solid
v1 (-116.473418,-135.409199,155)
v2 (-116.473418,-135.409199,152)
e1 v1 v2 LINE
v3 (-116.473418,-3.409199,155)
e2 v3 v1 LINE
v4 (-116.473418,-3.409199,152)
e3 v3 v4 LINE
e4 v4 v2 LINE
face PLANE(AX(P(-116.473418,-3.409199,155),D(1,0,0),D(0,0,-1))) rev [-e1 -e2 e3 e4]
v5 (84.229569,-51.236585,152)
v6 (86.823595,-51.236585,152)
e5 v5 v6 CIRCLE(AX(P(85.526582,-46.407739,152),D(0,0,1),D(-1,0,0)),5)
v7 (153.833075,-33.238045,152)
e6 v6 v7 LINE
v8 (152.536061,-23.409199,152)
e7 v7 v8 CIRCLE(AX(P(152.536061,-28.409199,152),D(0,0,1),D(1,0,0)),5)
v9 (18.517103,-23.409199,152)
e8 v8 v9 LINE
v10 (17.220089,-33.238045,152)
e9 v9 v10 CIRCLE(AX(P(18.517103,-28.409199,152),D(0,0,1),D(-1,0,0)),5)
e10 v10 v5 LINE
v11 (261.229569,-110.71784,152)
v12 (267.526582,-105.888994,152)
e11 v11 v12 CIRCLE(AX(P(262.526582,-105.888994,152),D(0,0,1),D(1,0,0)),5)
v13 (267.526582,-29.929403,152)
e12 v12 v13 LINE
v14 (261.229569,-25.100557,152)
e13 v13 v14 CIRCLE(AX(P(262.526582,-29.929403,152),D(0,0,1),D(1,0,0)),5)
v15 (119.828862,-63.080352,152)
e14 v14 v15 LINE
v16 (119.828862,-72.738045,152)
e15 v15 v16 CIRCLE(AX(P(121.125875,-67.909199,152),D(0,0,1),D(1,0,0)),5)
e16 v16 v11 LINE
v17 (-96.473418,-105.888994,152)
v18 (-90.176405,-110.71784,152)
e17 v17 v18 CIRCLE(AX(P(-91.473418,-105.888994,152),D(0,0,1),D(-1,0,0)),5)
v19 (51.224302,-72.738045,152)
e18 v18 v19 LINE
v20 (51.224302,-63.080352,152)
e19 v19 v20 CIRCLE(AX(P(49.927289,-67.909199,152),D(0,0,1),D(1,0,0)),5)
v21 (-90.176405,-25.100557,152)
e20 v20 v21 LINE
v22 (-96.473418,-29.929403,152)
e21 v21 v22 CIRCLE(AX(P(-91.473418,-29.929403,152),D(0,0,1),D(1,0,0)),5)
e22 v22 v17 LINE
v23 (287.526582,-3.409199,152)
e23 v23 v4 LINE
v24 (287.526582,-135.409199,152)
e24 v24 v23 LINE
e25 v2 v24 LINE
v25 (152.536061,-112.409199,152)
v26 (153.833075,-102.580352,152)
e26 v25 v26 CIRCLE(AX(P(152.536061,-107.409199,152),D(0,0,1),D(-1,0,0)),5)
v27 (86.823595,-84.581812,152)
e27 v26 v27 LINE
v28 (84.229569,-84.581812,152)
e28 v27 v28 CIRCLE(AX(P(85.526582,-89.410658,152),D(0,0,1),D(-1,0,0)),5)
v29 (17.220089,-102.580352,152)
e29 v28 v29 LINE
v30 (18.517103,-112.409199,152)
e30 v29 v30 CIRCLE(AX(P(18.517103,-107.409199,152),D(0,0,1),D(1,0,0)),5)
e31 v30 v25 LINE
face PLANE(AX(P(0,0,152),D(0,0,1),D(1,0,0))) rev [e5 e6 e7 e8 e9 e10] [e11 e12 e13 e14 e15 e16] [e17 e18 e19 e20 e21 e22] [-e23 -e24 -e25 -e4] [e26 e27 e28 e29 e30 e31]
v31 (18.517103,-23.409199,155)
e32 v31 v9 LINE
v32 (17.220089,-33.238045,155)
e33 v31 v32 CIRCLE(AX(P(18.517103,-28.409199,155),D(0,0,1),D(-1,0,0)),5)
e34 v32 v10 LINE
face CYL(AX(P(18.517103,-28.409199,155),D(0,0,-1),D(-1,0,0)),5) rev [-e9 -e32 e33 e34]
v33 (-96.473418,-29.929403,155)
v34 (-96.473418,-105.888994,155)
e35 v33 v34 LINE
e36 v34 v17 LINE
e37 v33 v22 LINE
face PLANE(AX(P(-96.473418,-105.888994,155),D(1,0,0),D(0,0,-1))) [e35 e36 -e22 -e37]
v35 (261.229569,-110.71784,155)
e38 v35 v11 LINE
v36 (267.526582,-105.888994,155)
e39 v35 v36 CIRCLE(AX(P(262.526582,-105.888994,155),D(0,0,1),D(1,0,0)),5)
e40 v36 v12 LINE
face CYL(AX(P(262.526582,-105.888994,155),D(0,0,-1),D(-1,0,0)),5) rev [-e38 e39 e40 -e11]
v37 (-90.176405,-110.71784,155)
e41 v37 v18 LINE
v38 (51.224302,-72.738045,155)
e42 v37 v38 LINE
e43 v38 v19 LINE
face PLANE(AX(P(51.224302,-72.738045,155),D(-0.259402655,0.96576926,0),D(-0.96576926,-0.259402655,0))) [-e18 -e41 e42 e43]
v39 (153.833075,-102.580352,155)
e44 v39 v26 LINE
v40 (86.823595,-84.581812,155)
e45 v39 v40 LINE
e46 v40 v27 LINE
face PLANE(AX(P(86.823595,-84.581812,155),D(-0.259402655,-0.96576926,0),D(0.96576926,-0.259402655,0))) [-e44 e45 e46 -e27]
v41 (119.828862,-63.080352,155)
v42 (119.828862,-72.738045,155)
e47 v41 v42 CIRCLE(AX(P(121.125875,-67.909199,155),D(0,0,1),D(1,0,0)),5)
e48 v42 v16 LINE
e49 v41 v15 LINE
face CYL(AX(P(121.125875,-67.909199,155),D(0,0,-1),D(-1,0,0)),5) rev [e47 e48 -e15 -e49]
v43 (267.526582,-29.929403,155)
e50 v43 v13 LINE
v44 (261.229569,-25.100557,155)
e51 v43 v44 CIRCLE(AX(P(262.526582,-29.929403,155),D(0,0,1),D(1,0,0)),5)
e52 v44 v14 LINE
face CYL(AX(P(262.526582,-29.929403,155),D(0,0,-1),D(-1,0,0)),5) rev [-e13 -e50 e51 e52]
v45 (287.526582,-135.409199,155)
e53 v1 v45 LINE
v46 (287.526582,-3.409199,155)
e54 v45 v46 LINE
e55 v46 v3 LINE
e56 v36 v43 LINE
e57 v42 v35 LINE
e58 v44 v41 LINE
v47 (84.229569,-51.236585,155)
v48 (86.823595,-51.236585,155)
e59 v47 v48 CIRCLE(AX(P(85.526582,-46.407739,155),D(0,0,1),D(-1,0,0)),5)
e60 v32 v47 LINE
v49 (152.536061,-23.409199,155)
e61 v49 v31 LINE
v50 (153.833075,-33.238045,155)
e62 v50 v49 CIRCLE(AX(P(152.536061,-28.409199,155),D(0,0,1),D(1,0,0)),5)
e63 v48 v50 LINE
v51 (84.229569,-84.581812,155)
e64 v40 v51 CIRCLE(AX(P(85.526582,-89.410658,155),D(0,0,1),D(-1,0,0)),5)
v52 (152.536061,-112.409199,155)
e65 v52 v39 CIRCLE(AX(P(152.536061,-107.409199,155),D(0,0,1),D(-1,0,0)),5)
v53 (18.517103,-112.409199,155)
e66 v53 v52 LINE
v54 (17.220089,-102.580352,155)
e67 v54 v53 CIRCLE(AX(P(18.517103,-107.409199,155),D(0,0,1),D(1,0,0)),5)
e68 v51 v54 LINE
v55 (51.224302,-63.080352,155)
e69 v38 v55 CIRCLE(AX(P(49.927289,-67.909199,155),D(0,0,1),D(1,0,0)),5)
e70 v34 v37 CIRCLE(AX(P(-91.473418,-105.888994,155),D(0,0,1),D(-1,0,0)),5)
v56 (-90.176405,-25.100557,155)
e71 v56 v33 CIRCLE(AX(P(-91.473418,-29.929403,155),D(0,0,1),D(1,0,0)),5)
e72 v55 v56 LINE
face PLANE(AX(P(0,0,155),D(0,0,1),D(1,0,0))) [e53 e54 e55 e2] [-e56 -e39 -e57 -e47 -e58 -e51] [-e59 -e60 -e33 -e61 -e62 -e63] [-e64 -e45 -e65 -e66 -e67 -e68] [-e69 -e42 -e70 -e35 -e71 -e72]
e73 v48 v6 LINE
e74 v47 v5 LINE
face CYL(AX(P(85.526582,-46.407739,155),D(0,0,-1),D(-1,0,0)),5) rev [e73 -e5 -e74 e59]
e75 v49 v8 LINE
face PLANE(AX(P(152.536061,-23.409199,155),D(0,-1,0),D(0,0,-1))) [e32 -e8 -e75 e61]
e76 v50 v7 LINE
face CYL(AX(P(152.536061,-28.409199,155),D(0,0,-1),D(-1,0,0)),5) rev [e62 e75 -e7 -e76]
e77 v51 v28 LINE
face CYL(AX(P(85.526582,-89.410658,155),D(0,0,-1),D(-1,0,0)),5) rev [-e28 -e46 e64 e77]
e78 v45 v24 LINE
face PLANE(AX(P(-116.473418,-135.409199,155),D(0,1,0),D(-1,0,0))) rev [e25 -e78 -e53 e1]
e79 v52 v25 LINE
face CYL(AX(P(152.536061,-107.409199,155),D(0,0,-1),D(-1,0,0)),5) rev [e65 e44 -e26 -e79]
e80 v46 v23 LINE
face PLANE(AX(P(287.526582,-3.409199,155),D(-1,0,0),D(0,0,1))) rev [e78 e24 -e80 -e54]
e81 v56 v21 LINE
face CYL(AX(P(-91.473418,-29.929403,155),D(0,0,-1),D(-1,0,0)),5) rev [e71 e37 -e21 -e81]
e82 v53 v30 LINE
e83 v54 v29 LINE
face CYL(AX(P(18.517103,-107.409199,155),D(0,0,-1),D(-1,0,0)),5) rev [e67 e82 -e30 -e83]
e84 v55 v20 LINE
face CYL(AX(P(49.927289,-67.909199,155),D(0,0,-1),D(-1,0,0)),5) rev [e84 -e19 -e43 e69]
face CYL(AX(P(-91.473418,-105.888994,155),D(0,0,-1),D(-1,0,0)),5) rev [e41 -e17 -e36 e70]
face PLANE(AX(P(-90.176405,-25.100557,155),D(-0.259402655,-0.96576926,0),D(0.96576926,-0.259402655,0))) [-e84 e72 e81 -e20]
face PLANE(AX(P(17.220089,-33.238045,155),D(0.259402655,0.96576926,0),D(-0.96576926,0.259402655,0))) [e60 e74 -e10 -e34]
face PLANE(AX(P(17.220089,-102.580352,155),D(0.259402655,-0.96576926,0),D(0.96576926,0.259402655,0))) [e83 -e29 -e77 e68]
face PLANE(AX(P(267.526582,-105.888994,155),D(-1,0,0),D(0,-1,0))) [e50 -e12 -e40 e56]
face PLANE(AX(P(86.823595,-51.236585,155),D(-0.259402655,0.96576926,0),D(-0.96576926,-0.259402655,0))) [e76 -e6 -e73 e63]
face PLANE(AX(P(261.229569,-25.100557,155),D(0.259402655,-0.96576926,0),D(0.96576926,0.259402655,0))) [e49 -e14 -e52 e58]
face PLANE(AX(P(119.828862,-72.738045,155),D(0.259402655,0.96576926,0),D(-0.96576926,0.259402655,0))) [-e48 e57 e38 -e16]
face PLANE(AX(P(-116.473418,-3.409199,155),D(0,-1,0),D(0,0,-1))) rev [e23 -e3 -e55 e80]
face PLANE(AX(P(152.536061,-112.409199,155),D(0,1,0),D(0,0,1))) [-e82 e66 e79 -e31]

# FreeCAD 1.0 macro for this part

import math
import FreeCAD as App
import Part
import Sketcher

V = App.Vector

doc = App.newDocument("Part")
body = doc.addObject("PartDesign::Body", "Body")

# Sketch on XY plane
sketch1 = doc.addObject("Sketcher::SketchObject", "Sketch")
body.addObject(sketch1)
sketch1.AttachmentSupport = (doc.XY_Plane, [""])
sketch1.MapMode = "FlatFace"
sketch1.AttachmentOffset = App.Placement(V(0, 0, 152), App.Rotation())
sketch1.addGeometry([
    Part.LineSegment(V(-116.5, -3.4, 0), V(-116.5, -135.4, 0)),  # 0
    Part.LineSegment(V(-116.5, -135.4, 0), V(287.5, -135.4, 0)),  # 1
    Part.LineSegment(V(287.5, -135.4, 0), V(287.5, -3.4, 0)),  # 2
    Part.LineSegment(V(287.5, -3.4, 0), V(-116.5, -3.4, 0)),  # 3
    Part.ArcOfCircle(Part.Circle(V(18.5, -107.4, 0), V(0, 0, 1), 5), math.radians(105), math.radians(270)),  # 4
    Part.LineSegment(V(17.2, -102.6, 0), V(84.2, -84.6, 0)),  # 5
    Part.ArcOfCircle(Part.Circle(V(85.5, -89.4, 0), V(0, 0, 1), 5), math.radians(75), math.radians(105)),  # 6
    Part.LineSegment(V(86.8, -84.6, 0), V(153.8, -102.6, 0)),  # 7
    Part.ArcOfCircle(Part.Circle(V(152.5, -107.4, 0), V(0, 0, 1), 5), math.radians(-90), math.radians(75)),  # 8
    Part.LineSegment(V(152.5, -112.4, 0), V(18.5, -112.4, 0)),  # 9
    Part.ArcOfCircle(Part.Circle(V(-91.5, -105.9, 0), V(0, 0, 1), 5), math.radians(180), math.radians(285)),  # 10
    Part.LineSegment(V(-96.5, -105.9, 0), V(-96.5, -29.9, 0)),  # 11
    Part.ArcOfCircle(Part.Circle(V(-91.5, -29.9, 0), V(0, 0, 1), 5), math.radians(75), math.radians(180)),  # 12
    Part.LineSegment(V(-90.2, -25.1, 0), V(51.2, -63.1, 0)),  # 13
    Part.ArcOfCircle(Part.Circle(V(49.9, -67.9, 0), V(0, 0, 1), 5), math.radians(-75), math.radians(75)),  # 14
    Part.LineSegment(V(51.2, -72.7, 0), V(-90.2, -110.7, 0)),  # 15
    Part.LineSegment(V(18.5, -23.4, 0), V(152.5, -23.4, 0)),  # 16
    Part.ArcOfCircle(Part.Circle(V(152.5, -28.4, 0), V(0, 0, 1), 5), math.radians(-75), math.radians(90)),  # 17
    Part.LineSegment(V(153.8, -33.2, 0), V(86.8, -51.2, 0)),  # 18
    Part.ArcOfCircle(Part.Circle(V(85.5, -46.4, 0), V(0, 0, 1), 5), math.radians(-105), math.radians(-75)),  # 19
    Part.LineSegment(V(84.2, -51.2, 0), V(17.2, -33.2, 0)),  # 20
    Part.ArcOfCircle(Part.Circle(V(18.5, -28.4, 0), V(0, 0, 1), 5), math.radians(90), math.radians(255)),  # 21
    Part.LineSegment(V(119.8, -63.1, 0), V(261.2, -25.1, 0)),  # 22
    Part.ArcOfCircle(Part.Circle(V(262.5, -29.9, 0), V(0, 0, 1), 5), math.radians(0), math.radians(105)),  # 23
    Part.LineSegment(V(267.5, -29.9, 0), V(267.5, -105.9, 0)),  # 24
    Part.ArcOfCircle(Part.Circle(V(262.5, -105.9, 0), V(0, 0, 1), 5), math.radians(-105), math.radians(0)),  # 25
    Part.LineSegment(V(261.2, -110.7, 0), V(119.8, -72.7, 0)),  # 26
    Part.ArcOfCircle(Part.Circle(V(121.1, -67.9, 0), V(0, 0, 1), 5), math.radians(105), math.radians(255)),  # 27
], False)
sketch1.addConstraint([
    Sketcher.Constraint("Coincident", 0, 2, 1, 1),
    Sketcher.Constraint("Coincident", 1, 2, 2, 1),
    Sketcher.Constraint("Coincident", 2, 2, 3, 1),
    Sketcher.Constraint("Coincident", 3, 2, 0, 1),
    Sketcher.Constraint("Tangent", 4, 1, 5, 1),
    Sketcher.Constraint("Tangent", 5, 2, 6, 2),
    Sketcher.Constraint("Tangent", 6, 1, 7, 1),
    Sketcher.Constraint("Tangent", 7, 2, 8, 2),
    Sketcher.Constraint("Tangent", 8, 1, 9, 1),
    Sketcher.Constraint("Tangent", 9, 2, 4, 2),
    Sketcher.Constraint("Tangent", 10, 1, 11, 1),
    Sketcher.Constraint("Tangent", 11, 2, 12, 2),
    Sketcher.Constraint("Tangent", 12, 1, 13, 1),
    Sketcher.Constraint("Tangent", 13, 2, 14, 2),
    Sketcher.Constraint("Tangent", 14, 1, 15, 1),
    Sketcher.Constraint("Tangent", 15, 2, 10, 2),
    Sketcher.Constraint("Tangent", 16, 2, 17, 2),
    Sketcher.Constraint("Tangent", 17, 1, 18, 1),
    Sketcher.Constraint("Tangent", 18, 2, 19, 2),
    Sketcher.Constraint("Tangent", 19, 1, 20, 1),
    Sketcher.Constraint("Tangent", 20, 2, 21, 2),
    Sketcher.Constraint("Tangent", 21, 1, 16, 1),
    Sketcher.Constraint("Tangent", 22, 2, 23, 2),
    Sketcher.Constraint("Tangent", 23, 1, 24, 1),
    Sketcher.Constraint("Tangent", 24, 2, 25, 2),
    Sketcher.Constraint("Tangent", 25, 1, 26, 1),
    Sketcher.Constraint("Tangent", 26, 2, 27, 2),
    Sketcher.Constraint("Tangent", 27, 1, 22, 1),
    Sketcher.Constraint("Vertical", 0),
    Sketcher.Constraint("Horizontal", 1),
    Sketcher.Constraint("Vertical", 2),
    Sketcher.Constraint("Horizontal", 3),
    Sketcher.Constraint("Horizontal", 9),
    Sketcher.Constraint("Vertical", 11),
    Sketcher.Constraint("Horizontal", 16),
    Sketcher.Constraint("Vertical", 24),
    Sketcher.Constraint("Equal", 4, 6),
    Sketcher.Constraint("Equal", 6, 8),
    Sketcher.Constraint("Equal", 8, 10),
    Sketcher.Constraint("Equal", 10, 12),
    Sketcher.Constraint("Equal", 12, 14),
    Sketcher.Constraint("Equal", 14, 17),
    Sketcher.Constraint("Equal", 17, 19),
    Sketcher.Constraint("Equal", 19, 21),
    Sketcher.Constraint("Equal", 21, 23),
    Sketcher.Constraint("Equal", 23, 25),
    Sketcher.Constraint("Equal", 25, 27),
    Sketcher.Constraint("Parallel", 7, 13),
    Sketcher.Constraint("Parallel", 5, 15),
    Sketcher.Constraint("Parallel", 15, 18),
    Sketcher.Constraint("Parallel", 13, 20),
    Sketcher.Constraint("Parallel", 18, 22),
    Sketcher.Constraint("Parallel", 20, 26),
    Sketcher.Constraint("Horizontal", 12, 3, 23, 3),
    Sketcher.Constraint("Horizontal", 10, 3, 25, 3),
    Sketcher.Constraint("Horizontal", 14, 3, 27, 3),
    Sketcher.Constraint("Vertical", 8, 3, 17, 3),
    Sketcher.Constraint("Vertical", 6, 3, 19, 3),
    Sketcher.Constraint("Radius", 4, 5.0),
    Sketcher.Constraint("DistanceX", 1, 1, 1, 2, 404.0),
    Sketcher.Constraint("DistanceY", 0, 2, 0, 1, 132.0),
    Sketcher.Constraint("DistanceX", 10, 3, 6, 3, 177.0),
    Sketcher.Constraint("DistanceY", 8, 3, 17, 3, 79.0),
    Sketcher.Constraint("DistanceX", 19, 3, 23, 3, 177.0),
    Sketcher.Constraint("DistanceX", 0, 2, 10, 3, 25.0),
    Sketcher.Constraint("DistanceY", 0, 2, 4, 3, 28.0),
    Sketcher.Constraint("DistanceY", 4, 3, 14, 3, 39.5),
    Sketcher.Constraint("DistanceX", 9, 2, 9, 1, 134.018959),
    Sketcher.Constraint("DistanceY", 11, 1, 11, 2, 75.959591),
    Sketcher.Constraint("DistanceY", 4, 3, -1, 1, 107.409199),
    Sketcher.Constraint("DistanceX", 4, 1, 14, 3, 32.7072),
    Sketcher.Constraint("DistanceX", -1, 1, 6, 3, 85.526582),
])
pad1 = doc.addObject("PartDesign::Pad", "Pad")
body.addObject(pad1)
pad1.Profile = sketch1
pad1.Length = 3

doc.recompute()
